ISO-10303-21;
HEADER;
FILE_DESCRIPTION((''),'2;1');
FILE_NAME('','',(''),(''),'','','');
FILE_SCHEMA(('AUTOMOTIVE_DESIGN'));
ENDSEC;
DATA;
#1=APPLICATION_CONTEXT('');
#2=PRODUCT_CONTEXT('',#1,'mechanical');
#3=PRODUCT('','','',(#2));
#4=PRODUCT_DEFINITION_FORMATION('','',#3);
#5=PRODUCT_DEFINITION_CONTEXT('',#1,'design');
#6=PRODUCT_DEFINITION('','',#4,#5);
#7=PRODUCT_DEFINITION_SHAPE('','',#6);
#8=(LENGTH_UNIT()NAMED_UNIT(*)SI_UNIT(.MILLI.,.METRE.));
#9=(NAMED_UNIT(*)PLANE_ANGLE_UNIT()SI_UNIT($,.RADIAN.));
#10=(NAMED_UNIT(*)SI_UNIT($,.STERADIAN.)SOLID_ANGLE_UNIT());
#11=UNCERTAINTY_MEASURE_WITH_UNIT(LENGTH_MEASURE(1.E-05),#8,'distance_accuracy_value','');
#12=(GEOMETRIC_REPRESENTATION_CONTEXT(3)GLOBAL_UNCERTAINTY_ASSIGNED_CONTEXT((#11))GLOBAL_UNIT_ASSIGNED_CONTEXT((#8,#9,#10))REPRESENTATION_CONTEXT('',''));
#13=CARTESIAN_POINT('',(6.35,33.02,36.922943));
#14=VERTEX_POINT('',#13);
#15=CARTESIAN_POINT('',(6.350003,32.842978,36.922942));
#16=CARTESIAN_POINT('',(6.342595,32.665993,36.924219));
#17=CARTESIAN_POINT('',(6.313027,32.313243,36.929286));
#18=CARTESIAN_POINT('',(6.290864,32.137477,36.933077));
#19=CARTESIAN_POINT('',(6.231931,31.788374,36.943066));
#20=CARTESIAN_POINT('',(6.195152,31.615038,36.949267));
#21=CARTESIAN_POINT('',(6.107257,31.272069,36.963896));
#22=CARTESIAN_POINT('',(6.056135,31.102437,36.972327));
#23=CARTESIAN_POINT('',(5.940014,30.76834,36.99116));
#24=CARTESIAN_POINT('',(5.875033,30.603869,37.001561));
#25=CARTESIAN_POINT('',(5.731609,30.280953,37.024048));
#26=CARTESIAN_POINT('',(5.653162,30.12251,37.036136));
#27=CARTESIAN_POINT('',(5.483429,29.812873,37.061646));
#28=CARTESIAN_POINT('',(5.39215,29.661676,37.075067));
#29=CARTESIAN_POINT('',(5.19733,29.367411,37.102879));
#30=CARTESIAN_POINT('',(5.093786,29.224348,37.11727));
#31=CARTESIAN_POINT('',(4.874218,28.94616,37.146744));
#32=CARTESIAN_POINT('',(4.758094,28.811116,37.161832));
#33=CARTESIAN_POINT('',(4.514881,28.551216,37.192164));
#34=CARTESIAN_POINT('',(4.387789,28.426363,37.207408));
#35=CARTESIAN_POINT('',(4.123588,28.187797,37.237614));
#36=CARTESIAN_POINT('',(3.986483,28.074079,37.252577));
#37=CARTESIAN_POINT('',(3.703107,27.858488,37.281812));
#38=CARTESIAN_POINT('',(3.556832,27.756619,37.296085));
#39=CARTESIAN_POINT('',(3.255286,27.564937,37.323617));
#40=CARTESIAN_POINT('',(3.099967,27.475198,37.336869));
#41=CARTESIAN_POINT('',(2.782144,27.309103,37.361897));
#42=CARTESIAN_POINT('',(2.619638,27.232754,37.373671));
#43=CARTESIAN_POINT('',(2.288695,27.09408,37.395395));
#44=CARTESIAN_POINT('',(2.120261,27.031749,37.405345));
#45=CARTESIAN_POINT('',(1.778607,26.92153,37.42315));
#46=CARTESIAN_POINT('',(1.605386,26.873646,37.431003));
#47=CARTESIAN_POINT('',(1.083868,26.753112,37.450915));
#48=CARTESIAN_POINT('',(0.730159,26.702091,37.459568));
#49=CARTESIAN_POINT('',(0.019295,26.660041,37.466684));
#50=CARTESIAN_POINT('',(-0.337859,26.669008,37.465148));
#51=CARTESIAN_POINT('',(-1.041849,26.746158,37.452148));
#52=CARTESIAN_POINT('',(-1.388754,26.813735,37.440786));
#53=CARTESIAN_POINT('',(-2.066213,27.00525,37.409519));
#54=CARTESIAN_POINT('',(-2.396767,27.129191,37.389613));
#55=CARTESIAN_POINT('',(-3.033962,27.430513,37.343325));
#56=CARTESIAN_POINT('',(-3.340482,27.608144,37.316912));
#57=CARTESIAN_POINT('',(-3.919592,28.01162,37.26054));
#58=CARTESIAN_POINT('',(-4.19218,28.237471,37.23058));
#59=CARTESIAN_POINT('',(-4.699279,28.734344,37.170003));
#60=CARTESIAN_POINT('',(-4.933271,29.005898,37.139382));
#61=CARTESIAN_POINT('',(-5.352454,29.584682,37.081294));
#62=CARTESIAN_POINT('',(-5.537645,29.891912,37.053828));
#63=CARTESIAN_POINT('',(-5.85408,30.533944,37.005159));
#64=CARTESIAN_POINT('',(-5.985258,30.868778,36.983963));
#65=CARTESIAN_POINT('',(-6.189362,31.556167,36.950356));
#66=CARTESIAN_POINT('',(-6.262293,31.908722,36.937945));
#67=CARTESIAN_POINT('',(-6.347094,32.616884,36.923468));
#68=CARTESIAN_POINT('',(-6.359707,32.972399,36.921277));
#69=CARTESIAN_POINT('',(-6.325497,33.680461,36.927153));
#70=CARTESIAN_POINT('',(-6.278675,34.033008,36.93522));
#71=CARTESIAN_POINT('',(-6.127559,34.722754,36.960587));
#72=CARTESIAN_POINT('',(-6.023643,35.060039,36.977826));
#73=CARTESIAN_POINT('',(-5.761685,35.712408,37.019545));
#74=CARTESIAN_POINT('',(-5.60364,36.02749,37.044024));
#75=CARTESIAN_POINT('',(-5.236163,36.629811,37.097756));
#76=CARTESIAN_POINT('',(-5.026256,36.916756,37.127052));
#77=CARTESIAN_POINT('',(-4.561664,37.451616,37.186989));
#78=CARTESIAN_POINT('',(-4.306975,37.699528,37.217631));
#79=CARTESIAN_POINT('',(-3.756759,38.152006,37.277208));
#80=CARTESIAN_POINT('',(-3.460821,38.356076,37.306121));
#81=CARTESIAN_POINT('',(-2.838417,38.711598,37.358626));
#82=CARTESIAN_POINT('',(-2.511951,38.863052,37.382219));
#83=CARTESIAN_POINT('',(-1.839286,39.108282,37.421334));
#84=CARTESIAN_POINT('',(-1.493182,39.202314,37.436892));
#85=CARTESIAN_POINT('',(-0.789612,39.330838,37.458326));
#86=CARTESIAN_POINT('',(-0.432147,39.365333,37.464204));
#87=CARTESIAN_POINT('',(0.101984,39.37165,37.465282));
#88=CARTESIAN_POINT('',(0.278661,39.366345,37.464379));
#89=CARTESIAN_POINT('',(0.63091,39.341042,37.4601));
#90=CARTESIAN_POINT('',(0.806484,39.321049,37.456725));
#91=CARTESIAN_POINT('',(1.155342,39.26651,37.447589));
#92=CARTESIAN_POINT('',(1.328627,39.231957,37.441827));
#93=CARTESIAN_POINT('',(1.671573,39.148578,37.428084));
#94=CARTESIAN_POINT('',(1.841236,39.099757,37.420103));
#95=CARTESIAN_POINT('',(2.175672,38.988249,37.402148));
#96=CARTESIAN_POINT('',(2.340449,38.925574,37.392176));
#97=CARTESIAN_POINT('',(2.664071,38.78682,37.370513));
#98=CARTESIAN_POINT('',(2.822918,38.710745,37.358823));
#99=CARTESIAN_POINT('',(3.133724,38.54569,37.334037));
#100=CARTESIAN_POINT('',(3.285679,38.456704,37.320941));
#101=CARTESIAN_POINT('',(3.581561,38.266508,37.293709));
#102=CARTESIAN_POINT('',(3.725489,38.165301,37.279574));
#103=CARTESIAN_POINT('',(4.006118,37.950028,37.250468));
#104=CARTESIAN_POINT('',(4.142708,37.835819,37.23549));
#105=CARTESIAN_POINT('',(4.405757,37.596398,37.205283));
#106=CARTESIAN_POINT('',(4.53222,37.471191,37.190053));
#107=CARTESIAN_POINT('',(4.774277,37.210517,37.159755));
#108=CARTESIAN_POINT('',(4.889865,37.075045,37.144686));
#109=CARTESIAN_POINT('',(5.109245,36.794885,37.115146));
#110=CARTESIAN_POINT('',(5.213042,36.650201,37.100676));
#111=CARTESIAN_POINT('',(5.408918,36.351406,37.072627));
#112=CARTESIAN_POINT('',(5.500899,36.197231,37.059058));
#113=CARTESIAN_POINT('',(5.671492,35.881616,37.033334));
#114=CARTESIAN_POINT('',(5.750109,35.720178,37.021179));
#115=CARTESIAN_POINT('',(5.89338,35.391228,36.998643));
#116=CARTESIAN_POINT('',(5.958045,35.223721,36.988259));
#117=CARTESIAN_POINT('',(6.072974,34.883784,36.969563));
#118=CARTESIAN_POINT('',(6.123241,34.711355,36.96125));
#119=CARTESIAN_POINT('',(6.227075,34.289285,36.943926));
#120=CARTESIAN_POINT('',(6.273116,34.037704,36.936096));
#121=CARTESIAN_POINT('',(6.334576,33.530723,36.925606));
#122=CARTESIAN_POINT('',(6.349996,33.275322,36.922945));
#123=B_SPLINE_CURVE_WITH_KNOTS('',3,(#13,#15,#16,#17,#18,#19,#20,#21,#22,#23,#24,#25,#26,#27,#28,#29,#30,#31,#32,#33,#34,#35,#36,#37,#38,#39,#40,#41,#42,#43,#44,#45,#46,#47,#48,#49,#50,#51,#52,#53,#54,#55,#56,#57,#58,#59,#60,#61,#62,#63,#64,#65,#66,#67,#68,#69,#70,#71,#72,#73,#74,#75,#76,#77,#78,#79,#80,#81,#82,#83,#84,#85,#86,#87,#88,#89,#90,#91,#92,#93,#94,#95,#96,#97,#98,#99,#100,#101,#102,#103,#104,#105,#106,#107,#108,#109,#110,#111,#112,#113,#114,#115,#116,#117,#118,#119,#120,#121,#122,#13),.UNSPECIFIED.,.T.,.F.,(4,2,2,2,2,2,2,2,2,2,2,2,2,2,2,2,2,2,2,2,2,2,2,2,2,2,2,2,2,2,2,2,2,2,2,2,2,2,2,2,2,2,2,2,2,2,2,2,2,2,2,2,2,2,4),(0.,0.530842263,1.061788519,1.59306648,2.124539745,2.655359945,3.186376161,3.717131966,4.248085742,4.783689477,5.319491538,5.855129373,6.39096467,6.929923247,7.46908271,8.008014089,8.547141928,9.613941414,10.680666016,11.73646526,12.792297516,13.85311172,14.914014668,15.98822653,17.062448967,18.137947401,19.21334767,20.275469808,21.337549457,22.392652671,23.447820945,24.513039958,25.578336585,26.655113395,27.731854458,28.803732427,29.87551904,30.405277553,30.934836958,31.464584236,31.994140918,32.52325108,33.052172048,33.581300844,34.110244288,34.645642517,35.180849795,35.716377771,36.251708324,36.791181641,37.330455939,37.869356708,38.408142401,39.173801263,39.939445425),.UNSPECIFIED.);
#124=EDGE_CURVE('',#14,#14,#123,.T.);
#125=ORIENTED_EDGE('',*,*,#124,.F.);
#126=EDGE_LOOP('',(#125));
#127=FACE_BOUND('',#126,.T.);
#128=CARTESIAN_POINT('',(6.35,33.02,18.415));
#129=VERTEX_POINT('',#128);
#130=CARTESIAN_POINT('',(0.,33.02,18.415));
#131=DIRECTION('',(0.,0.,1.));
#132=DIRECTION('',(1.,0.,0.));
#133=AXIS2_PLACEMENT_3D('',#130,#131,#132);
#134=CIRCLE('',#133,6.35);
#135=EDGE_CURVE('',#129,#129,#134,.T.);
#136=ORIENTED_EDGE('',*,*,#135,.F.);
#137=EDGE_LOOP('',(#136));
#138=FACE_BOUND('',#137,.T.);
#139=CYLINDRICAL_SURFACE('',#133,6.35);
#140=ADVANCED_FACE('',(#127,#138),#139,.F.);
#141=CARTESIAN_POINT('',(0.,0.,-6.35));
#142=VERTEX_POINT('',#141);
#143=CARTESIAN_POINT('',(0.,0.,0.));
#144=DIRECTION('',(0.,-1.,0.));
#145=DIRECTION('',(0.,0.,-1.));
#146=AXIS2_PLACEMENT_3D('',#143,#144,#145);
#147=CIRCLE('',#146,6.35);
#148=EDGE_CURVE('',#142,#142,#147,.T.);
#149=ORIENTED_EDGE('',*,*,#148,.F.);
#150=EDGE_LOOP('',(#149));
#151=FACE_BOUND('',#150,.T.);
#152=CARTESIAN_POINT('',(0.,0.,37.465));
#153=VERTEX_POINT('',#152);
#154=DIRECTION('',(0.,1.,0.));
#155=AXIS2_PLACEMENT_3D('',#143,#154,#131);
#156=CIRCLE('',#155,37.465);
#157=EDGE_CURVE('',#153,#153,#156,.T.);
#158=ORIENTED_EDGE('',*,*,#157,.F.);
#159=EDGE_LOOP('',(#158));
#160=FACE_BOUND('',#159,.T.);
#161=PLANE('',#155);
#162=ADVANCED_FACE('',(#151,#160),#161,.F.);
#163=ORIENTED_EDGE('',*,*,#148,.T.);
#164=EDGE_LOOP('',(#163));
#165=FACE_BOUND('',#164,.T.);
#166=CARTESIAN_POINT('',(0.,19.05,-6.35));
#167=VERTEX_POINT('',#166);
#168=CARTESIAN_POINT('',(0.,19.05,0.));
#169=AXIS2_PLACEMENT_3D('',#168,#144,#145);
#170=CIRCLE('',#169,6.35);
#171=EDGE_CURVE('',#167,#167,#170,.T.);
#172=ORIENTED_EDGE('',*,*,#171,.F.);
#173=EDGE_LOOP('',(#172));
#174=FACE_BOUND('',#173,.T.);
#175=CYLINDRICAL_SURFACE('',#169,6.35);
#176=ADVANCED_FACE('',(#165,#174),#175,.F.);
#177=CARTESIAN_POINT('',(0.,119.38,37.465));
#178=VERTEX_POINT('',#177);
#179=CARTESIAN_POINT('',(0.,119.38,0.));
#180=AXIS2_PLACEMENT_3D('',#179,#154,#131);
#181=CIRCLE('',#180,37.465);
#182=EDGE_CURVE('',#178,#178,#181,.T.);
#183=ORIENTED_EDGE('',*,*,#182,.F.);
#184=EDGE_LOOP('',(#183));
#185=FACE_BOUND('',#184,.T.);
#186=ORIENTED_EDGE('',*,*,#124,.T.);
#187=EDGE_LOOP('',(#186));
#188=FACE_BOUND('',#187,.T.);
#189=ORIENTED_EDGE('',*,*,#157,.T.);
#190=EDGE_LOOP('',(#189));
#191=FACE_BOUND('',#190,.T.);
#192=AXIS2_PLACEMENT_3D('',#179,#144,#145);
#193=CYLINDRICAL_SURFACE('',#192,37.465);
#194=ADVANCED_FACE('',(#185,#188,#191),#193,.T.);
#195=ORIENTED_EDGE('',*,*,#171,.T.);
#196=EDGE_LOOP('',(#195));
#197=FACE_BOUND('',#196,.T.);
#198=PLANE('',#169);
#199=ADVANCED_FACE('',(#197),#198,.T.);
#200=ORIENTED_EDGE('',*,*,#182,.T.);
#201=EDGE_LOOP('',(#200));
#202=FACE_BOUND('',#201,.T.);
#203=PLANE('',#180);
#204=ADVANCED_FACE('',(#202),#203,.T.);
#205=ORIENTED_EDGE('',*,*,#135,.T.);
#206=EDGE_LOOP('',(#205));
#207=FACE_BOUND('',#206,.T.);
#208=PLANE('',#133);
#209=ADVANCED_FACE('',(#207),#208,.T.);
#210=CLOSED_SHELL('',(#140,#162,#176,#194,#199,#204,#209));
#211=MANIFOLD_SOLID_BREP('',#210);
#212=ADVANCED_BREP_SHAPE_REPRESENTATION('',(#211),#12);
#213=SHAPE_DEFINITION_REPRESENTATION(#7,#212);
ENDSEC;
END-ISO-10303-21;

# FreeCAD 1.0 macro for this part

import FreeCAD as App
import Part
import Sketcher
from FreeCAD import Vector
Q = App.Units.Quantity

doc = App.newDocument("Part")
params = doc.addObject("Spreadsheet::Sheet", "Params")
for row, (alias, value) in enumerate([
    ("sketch1_diameter", "2.95 in"),
    ("pad1_length", "4.7 in"),
    ("sketch2_diameter", "0.5 in"),
    ("pocket1_length", "0.75 in"),
    ("sketch3_diameter", "0.5 in"),
    ("pocket2_length", "0.75 in"),
], start=1):
    params.set(f"A{row}", alias)
    params.set(f"B{row}", "=" + value)
    params.setAlias(f"B{row}", alias)

body = doc.addObject("PartDesign::Body", "Body")

# Sketch on XZ plane
sketch1 = doc.addObject("Sketcher::SketchObject", "Sketch")
body.addObject(sketch1)
sketch1.AttachmentSupport = (doc.XZ_Plane, [""])
sketch1.MapMode = "FlatFace"
sketch1.addGeometry(Part.Circle(Vector(0, 0, 0), Vector(0, 0, 1), 37), False)
sketch1.addConstraint(Sketcher.Constraint("Coincident", 0, 3, -1, 1))
sketch1.addConstraint(Sketcher.Constraint("Diameter", 0, Q("2.95 in")))
sketch1.setExpression("Constraints[1]", "Params.sketch1_diameter")
pad1 = doc.addObject("PartDesign::Pad", "Pad")
body.addObject(pad1)
pad1.Profile = sketch1
pad1.setExpression("Length", "Params.pad1_length")
pad1.Reversed = True

# Sketch on XY plane
sketch2 = doc.addObject("Sketcher::SketchObject", "Sketch001")
body.addObject(sketch2)
sketch2.AttachmentSupport = (doc.XY_Plane, [""])
sketch2.MapMode = "FlatFace"
sketch2.AttachmentOffset = App.Placement(Vector(0, 0, 1.475 * 25.4), App.Rotation())
sketch2.addGeometry(Part.Circle(Vector(0, 33, 0), Vector(0, 0, 1), 6), False)
sketch2.addConstraint(Sketcher.Constraint("PointOnObject", 0, 3, -2))
sketch2.addConstraint(Sketcher.Constraint("Diameter", 0, Q("0.5 in")))
sketch2.addConstraint(Sketcher.Constraint("DistanceY", -1, 1, 0, 3, Q("1.3 in")))
sketch2.setExpression("Constraints[1]", "Params.sketch2_diameter")
pocket1 = doc.addObject("PartDesign::Pocket", "Pocket")
body.addObject(pocket1)
pocket1.Profile = sketch2
pocket1.setExpression("Length", "Params.pocket1_length")

# Sketch on XZ plane
sketch3 = doc.addObject("Sketcher::SketchObject", "Sketch002")
body.addObject(sketch3)
sketch3.AttachmentSupport = (doc.XZ_Plane, [""])
sketch3.MapMode = "FlatFace"
sketch3.addGeometry(Part.Circle(Vector(0, 0, 0), Vector(0, 0, 1), 6), False)
sketch3.addConstraint(Sketcher.Constraint("Coincident", 0, 3, -1, 1))
sketch3.addConstraint(Sketcher.Constraint("Diameter", 0, Q("0.5 in")))
sketch3.setExpression("Constraints[1]", "Params.sketch3_diameter")
pocket2 = doc.addObject("PartDesign::Pocket", "Pocket001")
body.addObject(pocket2)
pocket2.Profile = sketch3
pocket2.setExpression("Length", "Params.pocket2_length")

doc.recompute()
